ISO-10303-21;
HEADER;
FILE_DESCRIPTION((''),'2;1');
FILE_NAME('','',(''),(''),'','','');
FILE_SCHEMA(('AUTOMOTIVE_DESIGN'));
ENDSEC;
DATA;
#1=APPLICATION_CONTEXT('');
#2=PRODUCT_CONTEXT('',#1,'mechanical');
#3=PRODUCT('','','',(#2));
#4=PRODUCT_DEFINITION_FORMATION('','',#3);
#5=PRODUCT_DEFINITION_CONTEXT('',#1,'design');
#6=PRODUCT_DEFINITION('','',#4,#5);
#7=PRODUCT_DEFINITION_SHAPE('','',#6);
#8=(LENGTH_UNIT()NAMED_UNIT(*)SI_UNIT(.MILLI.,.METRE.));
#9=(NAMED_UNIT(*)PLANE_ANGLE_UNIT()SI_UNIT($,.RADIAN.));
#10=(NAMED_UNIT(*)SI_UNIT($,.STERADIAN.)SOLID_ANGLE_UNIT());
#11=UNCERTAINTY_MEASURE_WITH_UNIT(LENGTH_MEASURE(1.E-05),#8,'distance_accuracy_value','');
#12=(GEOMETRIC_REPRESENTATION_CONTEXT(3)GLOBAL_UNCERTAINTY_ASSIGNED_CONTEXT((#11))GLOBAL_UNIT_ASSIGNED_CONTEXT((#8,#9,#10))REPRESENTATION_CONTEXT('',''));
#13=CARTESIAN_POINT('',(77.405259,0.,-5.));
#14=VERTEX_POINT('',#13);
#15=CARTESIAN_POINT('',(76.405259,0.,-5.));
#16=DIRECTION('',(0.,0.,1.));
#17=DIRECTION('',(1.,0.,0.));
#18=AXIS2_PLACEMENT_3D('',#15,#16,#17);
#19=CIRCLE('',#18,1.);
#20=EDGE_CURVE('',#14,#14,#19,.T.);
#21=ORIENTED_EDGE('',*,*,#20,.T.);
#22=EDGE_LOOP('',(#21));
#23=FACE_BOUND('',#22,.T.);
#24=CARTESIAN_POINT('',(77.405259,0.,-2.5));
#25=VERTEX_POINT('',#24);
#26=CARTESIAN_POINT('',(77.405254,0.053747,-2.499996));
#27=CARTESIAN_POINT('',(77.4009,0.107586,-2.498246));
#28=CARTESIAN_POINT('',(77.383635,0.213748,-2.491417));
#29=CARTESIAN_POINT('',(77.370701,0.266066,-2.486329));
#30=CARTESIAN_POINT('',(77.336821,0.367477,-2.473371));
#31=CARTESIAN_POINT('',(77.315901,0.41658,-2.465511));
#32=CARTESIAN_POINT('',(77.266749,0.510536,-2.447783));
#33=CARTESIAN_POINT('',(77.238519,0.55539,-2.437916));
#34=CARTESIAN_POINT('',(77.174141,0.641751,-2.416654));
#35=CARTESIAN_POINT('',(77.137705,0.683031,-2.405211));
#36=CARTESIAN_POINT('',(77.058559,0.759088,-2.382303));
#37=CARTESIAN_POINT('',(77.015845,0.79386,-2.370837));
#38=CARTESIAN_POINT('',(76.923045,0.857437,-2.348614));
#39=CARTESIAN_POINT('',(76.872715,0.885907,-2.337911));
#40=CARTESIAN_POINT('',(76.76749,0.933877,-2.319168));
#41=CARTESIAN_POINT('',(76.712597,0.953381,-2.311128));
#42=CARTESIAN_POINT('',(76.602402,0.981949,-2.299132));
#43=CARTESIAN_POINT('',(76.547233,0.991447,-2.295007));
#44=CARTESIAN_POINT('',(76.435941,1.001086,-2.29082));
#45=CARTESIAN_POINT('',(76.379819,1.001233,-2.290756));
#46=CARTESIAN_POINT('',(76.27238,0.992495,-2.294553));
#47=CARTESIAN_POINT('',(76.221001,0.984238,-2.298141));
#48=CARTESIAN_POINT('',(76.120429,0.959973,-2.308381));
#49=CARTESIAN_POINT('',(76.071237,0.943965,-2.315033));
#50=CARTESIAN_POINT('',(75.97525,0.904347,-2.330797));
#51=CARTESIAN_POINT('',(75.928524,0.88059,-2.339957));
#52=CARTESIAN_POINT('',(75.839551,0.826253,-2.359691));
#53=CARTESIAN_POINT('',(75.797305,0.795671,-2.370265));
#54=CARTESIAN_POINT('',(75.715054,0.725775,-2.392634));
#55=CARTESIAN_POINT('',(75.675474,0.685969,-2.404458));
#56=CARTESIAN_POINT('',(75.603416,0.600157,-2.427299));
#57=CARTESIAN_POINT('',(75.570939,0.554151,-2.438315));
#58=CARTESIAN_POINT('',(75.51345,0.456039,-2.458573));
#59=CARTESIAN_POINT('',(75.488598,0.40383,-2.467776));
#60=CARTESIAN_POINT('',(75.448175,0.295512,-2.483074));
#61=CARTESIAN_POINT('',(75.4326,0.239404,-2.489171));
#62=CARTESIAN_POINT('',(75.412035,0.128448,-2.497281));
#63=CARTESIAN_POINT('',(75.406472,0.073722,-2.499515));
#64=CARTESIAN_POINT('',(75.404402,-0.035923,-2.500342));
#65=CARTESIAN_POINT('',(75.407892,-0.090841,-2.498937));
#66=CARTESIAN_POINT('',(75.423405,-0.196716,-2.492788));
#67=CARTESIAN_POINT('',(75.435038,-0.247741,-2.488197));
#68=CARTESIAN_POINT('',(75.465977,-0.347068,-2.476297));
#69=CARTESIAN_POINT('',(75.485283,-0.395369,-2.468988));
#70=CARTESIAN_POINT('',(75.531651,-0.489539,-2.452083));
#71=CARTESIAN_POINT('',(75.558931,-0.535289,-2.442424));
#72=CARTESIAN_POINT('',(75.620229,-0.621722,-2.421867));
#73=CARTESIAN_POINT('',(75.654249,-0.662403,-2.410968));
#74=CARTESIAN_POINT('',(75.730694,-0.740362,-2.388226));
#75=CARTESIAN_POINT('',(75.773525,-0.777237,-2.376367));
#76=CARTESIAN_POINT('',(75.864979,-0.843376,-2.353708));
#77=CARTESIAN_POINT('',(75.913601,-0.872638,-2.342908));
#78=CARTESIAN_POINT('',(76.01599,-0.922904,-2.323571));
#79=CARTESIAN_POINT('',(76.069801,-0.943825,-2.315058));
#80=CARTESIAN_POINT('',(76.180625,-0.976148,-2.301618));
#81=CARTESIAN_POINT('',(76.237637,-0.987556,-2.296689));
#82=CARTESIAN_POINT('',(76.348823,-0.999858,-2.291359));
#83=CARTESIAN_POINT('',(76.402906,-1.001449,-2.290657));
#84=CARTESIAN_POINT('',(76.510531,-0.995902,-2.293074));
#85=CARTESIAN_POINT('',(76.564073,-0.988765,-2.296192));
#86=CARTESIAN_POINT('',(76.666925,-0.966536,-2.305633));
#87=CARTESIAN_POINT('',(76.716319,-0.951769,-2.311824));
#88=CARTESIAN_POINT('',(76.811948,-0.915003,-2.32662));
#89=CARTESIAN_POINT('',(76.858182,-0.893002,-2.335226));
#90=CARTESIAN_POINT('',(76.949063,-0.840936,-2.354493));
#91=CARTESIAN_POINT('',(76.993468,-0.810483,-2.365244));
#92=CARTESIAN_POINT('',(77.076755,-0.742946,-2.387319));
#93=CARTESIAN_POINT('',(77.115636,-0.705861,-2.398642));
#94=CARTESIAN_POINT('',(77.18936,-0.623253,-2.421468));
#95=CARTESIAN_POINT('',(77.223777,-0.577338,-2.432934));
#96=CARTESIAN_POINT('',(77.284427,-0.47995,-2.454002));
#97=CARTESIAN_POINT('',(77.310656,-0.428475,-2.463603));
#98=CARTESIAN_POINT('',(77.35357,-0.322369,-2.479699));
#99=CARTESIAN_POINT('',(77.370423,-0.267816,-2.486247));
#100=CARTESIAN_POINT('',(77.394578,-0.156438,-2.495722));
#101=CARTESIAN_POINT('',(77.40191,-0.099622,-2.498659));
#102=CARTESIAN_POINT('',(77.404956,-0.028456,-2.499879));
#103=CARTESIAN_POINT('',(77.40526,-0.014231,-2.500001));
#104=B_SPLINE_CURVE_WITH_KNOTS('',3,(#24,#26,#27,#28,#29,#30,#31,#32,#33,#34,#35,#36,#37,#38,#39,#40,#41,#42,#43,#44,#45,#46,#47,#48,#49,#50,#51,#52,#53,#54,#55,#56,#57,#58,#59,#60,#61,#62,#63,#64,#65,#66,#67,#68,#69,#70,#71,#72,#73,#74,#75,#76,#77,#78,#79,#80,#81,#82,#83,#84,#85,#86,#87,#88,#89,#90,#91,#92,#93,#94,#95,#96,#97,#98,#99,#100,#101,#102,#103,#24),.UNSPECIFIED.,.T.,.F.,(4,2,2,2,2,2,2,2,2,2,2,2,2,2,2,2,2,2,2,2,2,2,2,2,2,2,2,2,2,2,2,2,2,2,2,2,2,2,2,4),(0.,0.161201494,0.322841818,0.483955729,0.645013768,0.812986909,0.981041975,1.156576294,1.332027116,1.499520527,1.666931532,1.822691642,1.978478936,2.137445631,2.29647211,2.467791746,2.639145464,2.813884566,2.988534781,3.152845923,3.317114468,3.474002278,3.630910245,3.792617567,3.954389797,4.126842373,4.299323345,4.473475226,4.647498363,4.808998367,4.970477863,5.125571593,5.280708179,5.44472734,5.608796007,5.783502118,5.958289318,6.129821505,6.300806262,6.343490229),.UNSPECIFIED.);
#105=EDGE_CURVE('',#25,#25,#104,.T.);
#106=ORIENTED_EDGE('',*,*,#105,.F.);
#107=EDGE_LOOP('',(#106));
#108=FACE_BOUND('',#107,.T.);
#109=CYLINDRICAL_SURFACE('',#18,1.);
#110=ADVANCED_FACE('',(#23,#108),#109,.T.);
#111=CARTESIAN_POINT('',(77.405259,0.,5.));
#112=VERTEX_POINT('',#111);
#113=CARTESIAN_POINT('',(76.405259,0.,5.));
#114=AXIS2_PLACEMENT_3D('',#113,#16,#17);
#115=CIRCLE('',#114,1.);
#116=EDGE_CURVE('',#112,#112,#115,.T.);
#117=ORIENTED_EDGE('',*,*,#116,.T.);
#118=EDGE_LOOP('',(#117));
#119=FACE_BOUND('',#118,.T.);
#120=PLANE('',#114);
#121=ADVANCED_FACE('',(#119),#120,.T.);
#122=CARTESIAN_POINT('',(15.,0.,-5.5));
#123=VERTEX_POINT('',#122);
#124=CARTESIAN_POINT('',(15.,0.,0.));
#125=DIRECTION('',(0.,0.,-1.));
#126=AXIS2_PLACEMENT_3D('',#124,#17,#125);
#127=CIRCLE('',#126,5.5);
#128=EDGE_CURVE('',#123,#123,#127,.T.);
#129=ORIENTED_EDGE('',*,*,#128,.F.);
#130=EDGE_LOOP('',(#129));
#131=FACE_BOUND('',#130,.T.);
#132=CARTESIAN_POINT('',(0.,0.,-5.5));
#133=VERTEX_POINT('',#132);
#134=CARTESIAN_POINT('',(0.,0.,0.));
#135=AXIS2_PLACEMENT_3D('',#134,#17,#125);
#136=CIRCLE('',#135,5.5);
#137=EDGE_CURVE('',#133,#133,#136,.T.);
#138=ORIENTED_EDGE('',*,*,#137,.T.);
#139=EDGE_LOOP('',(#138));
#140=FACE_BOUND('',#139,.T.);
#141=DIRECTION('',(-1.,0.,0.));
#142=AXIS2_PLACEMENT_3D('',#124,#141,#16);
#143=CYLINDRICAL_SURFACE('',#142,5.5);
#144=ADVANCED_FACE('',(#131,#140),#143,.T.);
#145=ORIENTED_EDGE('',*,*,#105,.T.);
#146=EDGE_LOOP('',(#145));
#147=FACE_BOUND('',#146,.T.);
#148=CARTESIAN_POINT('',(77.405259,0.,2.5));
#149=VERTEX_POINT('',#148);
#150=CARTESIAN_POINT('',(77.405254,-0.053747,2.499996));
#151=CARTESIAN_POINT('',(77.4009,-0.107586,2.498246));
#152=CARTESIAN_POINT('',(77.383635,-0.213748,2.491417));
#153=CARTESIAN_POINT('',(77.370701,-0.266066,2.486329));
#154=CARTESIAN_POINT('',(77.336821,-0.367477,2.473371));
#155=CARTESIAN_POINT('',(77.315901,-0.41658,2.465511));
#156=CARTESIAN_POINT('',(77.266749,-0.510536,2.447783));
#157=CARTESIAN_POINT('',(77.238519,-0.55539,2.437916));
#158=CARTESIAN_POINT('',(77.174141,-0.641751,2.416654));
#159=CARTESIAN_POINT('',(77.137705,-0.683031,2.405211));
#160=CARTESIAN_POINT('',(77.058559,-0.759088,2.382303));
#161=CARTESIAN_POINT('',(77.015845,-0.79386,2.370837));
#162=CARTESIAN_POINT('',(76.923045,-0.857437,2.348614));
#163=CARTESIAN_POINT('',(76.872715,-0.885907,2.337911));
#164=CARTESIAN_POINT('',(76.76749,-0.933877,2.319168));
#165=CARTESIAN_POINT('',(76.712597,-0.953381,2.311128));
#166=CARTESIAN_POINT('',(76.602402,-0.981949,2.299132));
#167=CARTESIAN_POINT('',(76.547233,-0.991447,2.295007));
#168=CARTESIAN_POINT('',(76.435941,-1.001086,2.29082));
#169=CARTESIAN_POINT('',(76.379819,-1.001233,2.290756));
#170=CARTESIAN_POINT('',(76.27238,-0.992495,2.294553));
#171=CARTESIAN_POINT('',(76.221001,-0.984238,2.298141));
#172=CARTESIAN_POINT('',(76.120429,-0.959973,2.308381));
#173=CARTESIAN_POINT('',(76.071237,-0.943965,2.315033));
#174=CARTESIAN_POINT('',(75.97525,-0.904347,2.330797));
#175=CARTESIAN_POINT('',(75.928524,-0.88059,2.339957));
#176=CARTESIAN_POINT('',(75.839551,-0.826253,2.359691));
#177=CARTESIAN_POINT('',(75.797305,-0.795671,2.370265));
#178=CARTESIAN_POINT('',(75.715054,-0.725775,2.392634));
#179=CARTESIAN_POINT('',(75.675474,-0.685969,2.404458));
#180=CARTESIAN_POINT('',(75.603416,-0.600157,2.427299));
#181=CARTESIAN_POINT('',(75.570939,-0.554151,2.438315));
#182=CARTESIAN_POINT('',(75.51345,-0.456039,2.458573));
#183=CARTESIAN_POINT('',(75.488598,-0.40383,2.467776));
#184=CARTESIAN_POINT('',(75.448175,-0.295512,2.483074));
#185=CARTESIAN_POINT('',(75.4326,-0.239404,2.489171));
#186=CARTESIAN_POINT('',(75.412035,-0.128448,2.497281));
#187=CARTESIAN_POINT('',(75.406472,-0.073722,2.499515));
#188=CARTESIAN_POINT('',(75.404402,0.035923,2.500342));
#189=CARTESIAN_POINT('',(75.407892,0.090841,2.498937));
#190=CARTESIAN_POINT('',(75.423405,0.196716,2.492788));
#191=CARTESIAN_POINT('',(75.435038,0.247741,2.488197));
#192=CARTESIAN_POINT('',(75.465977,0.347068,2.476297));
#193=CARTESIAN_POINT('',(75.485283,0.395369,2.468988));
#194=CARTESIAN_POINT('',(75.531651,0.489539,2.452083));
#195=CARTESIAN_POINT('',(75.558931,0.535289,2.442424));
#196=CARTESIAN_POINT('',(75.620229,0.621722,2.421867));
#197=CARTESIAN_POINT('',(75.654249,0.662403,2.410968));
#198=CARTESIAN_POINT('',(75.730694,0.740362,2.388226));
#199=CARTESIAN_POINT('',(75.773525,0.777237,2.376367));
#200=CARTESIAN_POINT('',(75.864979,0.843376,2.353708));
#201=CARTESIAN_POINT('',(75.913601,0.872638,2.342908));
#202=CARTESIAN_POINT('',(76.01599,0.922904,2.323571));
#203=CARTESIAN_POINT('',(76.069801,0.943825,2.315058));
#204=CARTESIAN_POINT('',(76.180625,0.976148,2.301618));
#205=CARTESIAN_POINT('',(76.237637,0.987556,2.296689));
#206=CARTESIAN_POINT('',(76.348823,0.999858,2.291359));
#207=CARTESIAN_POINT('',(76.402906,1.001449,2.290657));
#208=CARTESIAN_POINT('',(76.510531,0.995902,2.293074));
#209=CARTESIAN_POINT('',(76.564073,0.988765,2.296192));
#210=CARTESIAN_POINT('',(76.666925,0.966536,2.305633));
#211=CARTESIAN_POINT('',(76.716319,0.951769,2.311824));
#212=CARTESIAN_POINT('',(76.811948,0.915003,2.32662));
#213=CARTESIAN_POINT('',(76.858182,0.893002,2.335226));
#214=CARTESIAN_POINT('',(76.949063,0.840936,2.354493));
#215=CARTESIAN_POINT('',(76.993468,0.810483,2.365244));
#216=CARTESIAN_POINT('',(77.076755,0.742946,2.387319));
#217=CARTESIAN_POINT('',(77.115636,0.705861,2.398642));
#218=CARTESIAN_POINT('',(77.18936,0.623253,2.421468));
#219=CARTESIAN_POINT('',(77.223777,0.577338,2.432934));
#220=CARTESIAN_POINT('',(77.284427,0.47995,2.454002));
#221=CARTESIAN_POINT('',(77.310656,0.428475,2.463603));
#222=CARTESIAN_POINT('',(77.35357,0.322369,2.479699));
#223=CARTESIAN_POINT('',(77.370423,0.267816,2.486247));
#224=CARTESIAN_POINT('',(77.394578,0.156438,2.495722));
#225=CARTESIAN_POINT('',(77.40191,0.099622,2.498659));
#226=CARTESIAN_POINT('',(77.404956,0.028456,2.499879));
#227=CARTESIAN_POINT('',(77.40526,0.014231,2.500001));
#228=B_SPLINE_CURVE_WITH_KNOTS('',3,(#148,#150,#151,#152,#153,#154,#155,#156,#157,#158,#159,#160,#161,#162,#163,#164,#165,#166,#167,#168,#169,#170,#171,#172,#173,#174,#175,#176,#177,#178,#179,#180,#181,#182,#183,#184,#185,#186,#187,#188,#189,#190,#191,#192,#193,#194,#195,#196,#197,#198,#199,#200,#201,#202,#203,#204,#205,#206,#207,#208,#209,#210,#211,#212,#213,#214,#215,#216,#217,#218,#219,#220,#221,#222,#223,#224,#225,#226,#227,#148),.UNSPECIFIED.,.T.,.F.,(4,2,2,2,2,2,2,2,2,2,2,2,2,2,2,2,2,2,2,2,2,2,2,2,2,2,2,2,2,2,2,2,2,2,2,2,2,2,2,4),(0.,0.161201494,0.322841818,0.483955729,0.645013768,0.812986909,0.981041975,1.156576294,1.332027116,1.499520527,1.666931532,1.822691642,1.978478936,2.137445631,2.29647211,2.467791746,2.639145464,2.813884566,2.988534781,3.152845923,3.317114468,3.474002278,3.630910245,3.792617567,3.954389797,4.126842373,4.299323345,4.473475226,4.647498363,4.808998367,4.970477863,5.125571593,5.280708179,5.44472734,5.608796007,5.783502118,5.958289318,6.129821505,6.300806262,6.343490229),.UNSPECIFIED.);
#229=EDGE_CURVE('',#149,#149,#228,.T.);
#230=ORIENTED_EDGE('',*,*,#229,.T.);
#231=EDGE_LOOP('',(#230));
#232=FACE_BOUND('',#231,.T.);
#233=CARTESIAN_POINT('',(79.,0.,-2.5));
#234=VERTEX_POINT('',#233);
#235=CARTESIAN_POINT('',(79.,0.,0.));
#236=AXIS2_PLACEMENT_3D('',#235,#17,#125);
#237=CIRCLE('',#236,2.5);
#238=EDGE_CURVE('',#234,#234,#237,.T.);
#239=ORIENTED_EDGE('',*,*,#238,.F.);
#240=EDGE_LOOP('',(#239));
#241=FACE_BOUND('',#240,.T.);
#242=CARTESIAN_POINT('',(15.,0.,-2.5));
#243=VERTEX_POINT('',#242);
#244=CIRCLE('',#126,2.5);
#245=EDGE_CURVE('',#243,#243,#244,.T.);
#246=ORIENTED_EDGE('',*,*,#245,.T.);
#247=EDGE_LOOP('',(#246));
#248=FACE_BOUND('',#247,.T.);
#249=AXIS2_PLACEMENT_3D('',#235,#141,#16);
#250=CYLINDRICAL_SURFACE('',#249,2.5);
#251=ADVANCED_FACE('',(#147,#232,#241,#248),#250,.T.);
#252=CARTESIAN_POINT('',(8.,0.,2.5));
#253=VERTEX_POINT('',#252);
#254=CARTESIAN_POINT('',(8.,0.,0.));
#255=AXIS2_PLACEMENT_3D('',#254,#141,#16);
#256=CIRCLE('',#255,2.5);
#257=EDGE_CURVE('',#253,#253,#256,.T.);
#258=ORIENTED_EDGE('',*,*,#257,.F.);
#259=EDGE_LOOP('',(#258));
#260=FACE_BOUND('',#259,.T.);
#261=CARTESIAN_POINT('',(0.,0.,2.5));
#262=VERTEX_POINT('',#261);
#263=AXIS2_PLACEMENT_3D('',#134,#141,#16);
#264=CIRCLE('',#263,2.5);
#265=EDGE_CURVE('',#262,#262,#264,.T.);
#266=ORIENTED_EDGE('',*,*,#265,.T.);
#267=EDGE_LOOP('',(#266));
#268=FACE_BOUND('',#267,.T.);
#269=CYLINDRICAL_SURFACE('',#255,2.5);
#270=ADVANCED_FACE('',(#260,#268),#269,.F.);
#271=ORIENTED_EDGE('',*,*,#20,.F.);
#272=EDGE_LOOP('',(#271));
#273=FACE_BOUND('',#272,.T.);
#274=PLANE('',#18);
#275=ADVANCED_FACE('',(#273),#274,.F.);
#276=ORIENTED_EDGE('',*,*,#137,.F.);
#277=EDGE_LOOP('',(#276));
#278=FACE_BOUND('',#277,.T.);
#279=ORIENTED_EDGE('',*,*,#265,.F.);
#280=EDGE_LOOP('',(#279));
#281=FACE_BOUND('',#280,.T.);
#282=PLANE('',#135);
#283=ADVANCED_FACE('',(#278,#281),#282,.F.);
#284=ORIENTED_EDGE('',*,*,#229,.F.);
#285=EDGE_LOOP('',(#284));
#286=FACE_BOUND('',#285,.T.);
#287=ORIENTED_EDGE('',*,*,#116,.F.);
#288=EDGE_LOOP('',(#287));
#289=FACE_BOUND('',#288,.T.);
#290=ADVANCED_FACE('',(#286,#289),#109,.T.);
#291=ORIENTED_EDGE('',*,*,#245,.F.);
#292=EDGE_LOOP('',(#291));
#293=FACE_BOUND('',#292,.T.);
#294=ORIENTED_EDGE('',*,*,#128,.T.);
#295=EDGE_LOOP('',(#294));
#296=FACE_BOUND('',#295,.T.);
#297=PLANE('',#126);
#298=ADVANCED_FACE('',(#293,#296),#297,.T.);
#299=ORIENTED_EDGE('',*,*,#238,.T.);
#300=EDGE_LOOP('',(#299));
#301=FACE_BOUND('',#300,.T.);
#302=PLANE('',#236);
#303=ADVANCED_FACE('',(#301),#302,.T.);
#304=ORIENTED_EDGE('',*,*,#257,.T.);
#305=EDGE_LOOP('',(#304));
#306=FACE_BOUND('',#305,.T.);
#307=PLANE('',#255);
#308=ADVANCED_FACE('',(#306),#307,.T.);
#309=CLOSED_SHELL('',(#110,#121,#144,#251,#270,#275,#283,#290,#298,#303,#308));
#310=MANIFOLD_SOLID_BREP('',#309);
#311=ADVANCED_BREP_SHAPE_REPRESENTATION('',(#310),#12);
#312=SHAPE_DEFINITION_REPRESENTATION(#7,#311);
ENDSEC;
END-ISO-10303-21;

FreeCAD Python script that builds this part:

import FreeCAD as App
import Part
import Sketcher

doc = App.newDocument("Part")
body = doc.addObject("PartDesign::Body", "Body")

# Sketch on YZ plane
sketch1 = body.newObject("Sketcher::SketchObject", "Sketch")
sketch1.AttachmentSupport = (doc.getObject("YZ_Plane"), [""])
sketch1.MapMode = "FlatFace"
sketch1.addGeometry(Part.Circle(App.Vector(0, 0, 0), App.Vector(0, 0, 1), 5.5), False)
sketch1.addConstraint([
    Sketcher.Constraint("Coincident", 0, 3, -1, 1),
    Sketcher.Constraint("Diameter", 0, 11.0),
])
pad1 = body.newObject("PartDesign::Pad", "Pad")
pad1.Profile = sketch1
pad1.Length = 15

# Sketch on YZ plane
sketch2 = body.newObject("Sketcher::SketchObject", "Sketch001")
sketch2.AttachmentSupport = (doc.getObject("YZ_Plane"), [""])
sketch2.MapMode = "FlatFace"
sketch2.AttachmentOffset = App.Placement(App.Vector(0, 0, 15), App.Rotation())
sketch2.addGeometry(Part.Circle(App.Vector(0, 0, 0), App.Vector(0, 0, 1), 2.5), False)
sketch2.addConstraint([
    Sketcher.Constraint("Coincident", 0, 3, -1, 1),
    Sketcher.Constraint("Diameter", 0, 5.0),
])
pad2 = body.newObject("PartDesign::Pad", "Pad001")
pad2.Profile = sketch2
pad2.Length = 64

# Sketch on YZ plane
sketch3 = body.newObject("Sketcher::SketchObject", "Sketch002")
sketch3.AttachmentSupport = (doc.getObject("YZ_Plane"), [""])
sketch3.MapMode = "FlatFace"
sketch3.addGeometry(Part.Circle(App.Vector(0, 0, 0), App.Vector(0, 0, 1), 2.5), False)
sketch3.addConstraint([
    Sketcher.Constraint("Coincident", 0, 3, -1, 1),
    Sketcher.Constraint("Diameter", 0, 5.0),
])
pocket1 = body.newObject("PartDesign::Pocket", "Pocket")
pocket1.Profile = sketch3
pocket1.Length = 8
pocket1.Reversed = True

# Sketch on XY plane
sketch4 = body.newObject("Sketcher::SketchObject", "Sketch003")
sketch4.AttachmentSupport = (doc.getObject("XY_Plane"), [""])
sketch4.MapMode = "FlatFace"
sketch4.AttachmentOffset = App.Placement(App.Vector(0, 0, 2.5), App.Rotation())
sketch4.addGeometry(Part.Circle(App.Vector(76.405259, 0, 0), App.Vector(0, 0, 1), 1), False)
sketch4.addConstraint([
    Sketcher.Constraint("PointOnObject", 0, 3, -1),
    Sketcher.Constraint("Diameter", 0, 2.0),
    Sketcher.Constraint("DistanceX", -1, 1, 0, 3, 76.405259),
])
pad3 = body.newObject("PartDesign::Pad", "Pad002")
pad3.Profile = sketch4
pad3.Type = "TwoLengths"
pad3.Length = 2.5
pad3.Length2 = 7.5

doc.recompute()
